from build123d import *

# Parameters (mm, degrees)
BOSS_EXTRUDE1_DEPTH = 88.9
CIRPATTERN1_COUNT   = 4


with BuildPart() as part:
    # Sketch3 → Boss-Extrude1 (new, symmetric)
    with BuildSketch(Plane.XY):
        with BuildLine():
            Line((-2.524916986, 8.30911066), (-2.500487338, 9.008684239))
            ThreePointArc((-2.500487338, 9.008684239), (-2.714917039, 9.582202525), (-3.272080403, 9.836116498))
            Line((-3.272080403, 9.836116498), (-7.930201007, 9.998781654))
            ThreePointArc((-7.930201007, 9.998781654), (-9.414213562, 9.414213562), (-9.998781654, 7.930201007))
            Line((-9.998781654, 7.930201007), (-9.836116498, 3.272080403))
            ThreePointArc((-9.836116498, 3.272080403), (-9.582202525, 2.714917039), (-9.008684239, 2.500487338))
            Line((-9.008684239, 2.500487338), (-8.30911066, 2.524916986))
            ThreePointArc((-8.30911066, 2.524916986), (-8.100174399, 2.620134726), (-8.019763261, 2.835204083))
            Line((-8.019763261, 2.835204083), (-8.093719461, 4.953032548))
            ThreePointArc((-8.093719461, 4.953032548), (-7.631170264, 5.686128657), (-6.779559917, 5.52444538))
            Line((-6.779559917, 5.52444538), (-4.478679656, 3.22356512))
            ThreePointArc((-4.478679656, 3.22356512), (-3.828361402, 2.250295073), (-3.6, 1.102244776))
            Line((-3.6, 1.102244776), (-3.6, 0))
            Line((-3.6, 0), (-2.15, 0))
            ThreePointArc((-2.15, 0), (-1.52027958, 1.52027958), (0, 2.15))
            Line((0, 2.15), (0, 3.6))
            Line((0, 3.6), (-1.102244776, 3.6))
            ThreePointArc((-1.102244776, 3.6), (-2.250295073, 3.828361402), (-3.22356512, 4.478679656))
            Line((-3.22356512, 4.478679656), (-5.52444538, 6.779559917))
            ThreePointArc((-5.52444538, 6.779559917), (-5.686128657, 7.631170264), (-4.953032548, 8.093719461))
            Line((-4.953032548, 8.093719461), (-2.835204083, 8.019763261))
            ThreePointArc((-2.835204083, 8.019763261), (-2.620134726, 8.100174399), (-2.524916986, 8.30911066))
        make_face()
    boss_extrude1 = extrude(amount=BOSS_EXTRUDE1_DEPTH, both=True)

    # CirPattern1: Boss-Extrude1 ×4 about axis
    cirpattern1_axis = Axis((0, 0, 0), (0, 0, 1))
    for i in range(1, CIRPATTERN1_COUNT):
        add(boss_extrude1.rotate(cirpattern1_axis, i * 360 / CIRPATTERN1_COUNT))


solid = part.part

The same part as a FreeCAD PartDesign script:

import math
import FreeCAD as App
import Part
import Sketcher

V = App.Vector
Q = App.Units.Quantity

doc = App.newDocument("Part")
params = doc.addObject("Spreadsheet::Sheet", "Params")
for row, (alias, value) in enumerate([
    ("sketch1_radius", "2 mm"),
    ("sketch1_radius2", "3 mm"),
    ("sketch1_radius3", "0.8 mm"),
    ("sketch1_radius4", "0.3 mm"),
    ("sketch1_radius5", "2.15 mm"),
    ("pad1_length", "177.8 mm"),
], start=1):
    params.set(f"A{row}", alias)
    params.set(f"B{row}", "=" + value)
    params.setAlias(f"B{row}", alias)

body = doc.addObject("PartDesign::Body", "Body")

# Sketch on XY plane
sketch1 = doc.addObject("Sketcher::SketchObject", "Sketch")
body.addObject(sketch1)
sketch1.AttachmentSupport = (doc.XY_Plane, [""])
sketch1.MapMode = "FlatFace"
sketch1.addGeometry(Part.LineSegment(V(-2.524917, 8.309111, 0), V(-2.500487, 9.008684, 0)), False)
sketch1.addGeometry(Part.ArcOfCircle(Part.Circle(V(-3.3, 9.036604, 0), V(0, 0, 1), 0.8), math.radians(-2), math.radians(88)), False)
sketch1.addGeometry(Part.LineSegment(V(-3.27208, 9.836116, 0), V(-7.930201, 9.998782, 0)), False)
sketch1.addGeometry(Part.ArcOfCircle(Part.Circle(V(-8, 8, 0), V(0, 0, 1), 2), math.radians(88), math.radians(182)), False)
sketch1.addGeometry(Part.LineSegment(V(-9.998782, 7.930201, 0), V(-9.836116, 3.27208, 0)), False)
sketch1.addGeometry(Part.ArcOfCircle(Part.Circle(V(-9.036604, 3.3, 0), V(0, 0, 1), 0.8), math.radians(-178), math.radians(-88)), False)
sketch1.addGeometry(Part.LineSegment(V(-9.008684, 2.500487, 0), V(-8.309111, 2.524917, 0)), False)
sketch1.addGeometry(Part.ArcOfCircle(Part.Circle(V(-8.319581, 2.824734, 0), V(0, 0, 1), 0.3), math.radians(-88), math.radians(2)), False)
sketch1.addGeometry(Part.LineSegment(V(-8.019763, 2.835204, 0), V(-8.093719, 4.953033, 0)), False)
sketch1.addGeometry(Part.ArcOfCircle(Part.Circle(V(-7.324097, 4.979908, 0), V(0, 0, 1), 0.770092), math.radians(45), math.radians(182)), False)
sketch1.addGeometry(Part.LineSegment(V(-6.77956, 5.524445, 0), V(-4.47868, 3.223565, 0)), False)
sketch1.addGeometry(Part.ArcOfCircle(Part.Circle(V(-6.6, 1.102245, 0), V(0, 0, 1), 3), math.radians(0), math.radians(45)), False)
sketch1.addGeometry(Part.LineSegment(V(-3.6, 1.102245, 0), V(-3.6, 0, 0)), False)
sketch1.addGeometry(Part.LineSegment(V(-3.6, 0, 0), V(-2.15, 0, 0)), False)
sketch1.addGeometry(Part.ArcOfCircle(Part.Circle(V(0, 0, 0), V(0, 0, 1), 2.15), math.radians(90), math.radians(180)), False)
sketch1.addGeometry(Part.LineSegment(V(0, 2.15, 0), V(0, 3.6, 0)), False)
sketch1.addGeometry(Part.LineSegment(V(0, 3.6, 0), V(-1.102245, 3.6, 0)), False)
sketch1.addGeometry(Part.ArcOfCircle(Part.Circle(V(-1.102245, 6.6, 0), V(0, 0, 1), 3), math.radians(-135), math.radians(-90)), False)
sketch1.addGeometry(Part.LineSegment(V(-3.223565, 4.47868, 0), V(-5.524445, 6.77956, 0)), False)
sketch1.addGeometry(Part.ArcOfCircle(Part.Circle(V(-4.979908, 7.324097, 0), V(0, 0, 1), 0.770092), math.radians(88), math.radians(225)), False)
sketch1.addGeometry(Part.LineSegment(V(-4.953033, 8.093719, 0), V(-2.835204, 8.019763, 0)), False)
sketch1.addGeometry(Part.ArcOfCircle(Part.Circle(V(-2.824734, 8.319581, 0), V(0, 0, 1), 0.3), math.radians(-92), math.radians(-2)), False)
sketch1.addConstraint(Sketcher.Constraint("Tangent", 0, 2, 1, 1))
sketch1.addConstraint(Sketcher.Constraint("Tangent", 1, 2, 2, 1))
sketch1.addConstraint(Sketcher.Constraint("Tangent", 2, 2, 3, 1))
sketch1.addConstraint(Sketcher.Constraint("Tangent", 3, 2, 4, 1))
sketch1.addConstraint(Sketcher.Constraint("Tangent", 4, 2, 5, 1))
sketch1.addConstraint(Sketcher.Constraint("Tangent", 5, 2, 6, 1))
sketch1.addConstraint(Sketcher.Constraint("Tangent", 6, 2, 7, 1))
sketch1.addConstraint(Sketcher.Constraint("Tangent", 7, 2, 8, 1))
sketch1.addConstraint(Sketcher.Constraint("Tangent", 8, 2, 9, 2))
sketch1.addConstraint(Sketcher.Constraint("Tangent", 9, 1, 10, 1))
sketch1.addConstraint(Sketcher.Constraint("Tangent", 10, 2, 11, 2))
sketch1.addConstraint(Sketcher.Constraint("Tangent", 11, 1, 12, 1))
sketch1.addConstraint(Sketcher.Constraint("Coincident", 12, 2, 13, 1))
sketch1.addConstraint(Sketcher.Constraint("Coincident", 13, 2, 14, 2))
sketch1.addConstraint(Sketcher.Constraint("Coincident", 14, 1, 15, 1))
sketch1.addConstraint(Sketcher.Constraint("Coincident", 15, 2, 16, 1))
sketch1.addConstraint(Sketcher.Constraint("Tangent", 16, 2, 17, 2))
sketch1.addConstraint(Sketcher.Constraint("Tangent", 17, 1, 18, 1))
sketch1.addConstraint(Sketcher.Constraint("Tangent", 18, 2, 19, 2))
sketch1.addConstraint(Sketcher.Constraint("Tangent", 19, 1, 20, 1))
sketch1.addConstraint(Sketcher.Constraint("Tangent", 20, 2, 21, 1))
sketch1.addConstraint(Sketcher.Constraint("Tangent", 21, 2, 0, 1))
sketch1.addConstraint(Sketcher.Constraint("Vertical", 12))
sketch1.addConstraint(Sketcher.Constraint("Horizontal", 13))
sketch1.addConstraint(Sketcher.Constraint("Vertical", 15))
sketch1.addConstraint(Sketcher.Constraint("Horizontal", 16))
sketch1.addConstraint(Sketcher.Constraint("Coincident", 14, 3, -1, 1))
sketch1.addConstraint(Sketcher.Constraint("Equal", 1, 5))
sketch1.addConstraint(Sketcher.Constraint("Equal", 11, 17))
sketch1.addConstraint(Sketcher.Constraint("Equal", 9, 19))
sketch1.addConstraint(Sketcher.Constraint("Equal", 7, 21))
sketch1.addConstraint(Sketcher.Constraint("PointOnObject", 12, 2, -1))
sketch1.addConstraint(Sketcher.Constraint("PointOnObject", 14, 1, -2))
sketch1.addConstraint(Sketcher.Constraint("Perpendicular", 0, 2))
sketch1.addConstraint(Sketcher.Constraint("Perpendicular", 4, 6))
sketch1.addConstraint(Sketcher.Constraint("Perpendicular", 6, 8))
sketch1.addConstraint(Sketcher.Constraint("Parallel", 10, 18))
sketch1.addConstraint(Sketcher.Constraint("Parallel", 2, 20))
sketch1.addConstraint(Sketcher.Constraint("Equal", 16, 12))
sketch1.addConstraint(Sketcher.Constraint("Equal", 13, 15))
sketch1.addConstraint(Sketcher.Constraint("Equal", 2, 4))
sketch1.addConstraint(Sketcher.Constraint("Equal", 0, 6))
sketch1.addConstraint(Sketcher.Constraint("Equal", 10, 18))
sketch1.addConstraint(Sketcher.Constraint("Equal", 8, 20))
sketch1.addConstraint(Sketcher.Constraint("Radius", 3, 2.0))
sketch1.addConstraint(Sketcher.Constraint("Radius", 11, 3.0))
sketch1.addConstraint(Sketcher.Constraint("Radius", 1, 0.8))
sketch1.addConstraint(Sketcher.Constraint("Radius", 7, 0.3))
sketch1.addConstraint(Sketcher.Constraint("Angle", 0, Q("88 deg")))
sketch1.addConstraint(Sketcher.Constraint("Angle", 4, Q("-88 deg")))
sketch1.addConstraint(Sketcher.Constraint("Radius", 14, 2.15))
sketch1.addConstraint(Sketcher.Constraint("DistanceX", 3, 3, -1, 1, 8.0))
sketch1.addConstraint(Sketcher.Constraint("Distance", 0, 0.7))
sketch1.addConstraint(Sketcher.Constraint("DistanceX", 13, 1, 13, 2, 1.45))
sketch1.addConstraint(Sketcher.Constraint("DistanceX", 1, 3, -1, 1, 3.3))
sketch1.addConstraint(Sketcher.Constraint("Radius", 9, 0.770092))
sketch1.addConstraint(Sketcher.Constraint("DistanceY", 7, 3, 8, 2, 2.128298))
sketch1.setExpression("Constraints[44]", "Params.sketch1_radius")
sketch1.setExpression("Constraints[45]", "Params.sketch1_radius2")
sketch1.setExpression("Constraints[46]", "Params.sketch1_radius3")
sketch1.setExpression("Constraints[47]", "Params.sketch1_radius4")
sketch1.setExpression("Constraints[50]", "Params.sketch1_radius5")
pad1 = doc.addObject("PartDesign::Pad", "Pad")
body.addObject(pad1)
pad1.Profile = sketch1
pad1.setExpression("Length", "Params.pad1_length")
pad1.Midplane = True
doc.recompute()

polarpattern = doc.addObject("PartDesign::PolarPattern", "PolarPattern")
body.addObject(polarpattern)
polarpattern.Originals = [pad1]
polarpattern.Axis = (doc.Z_Axis, [""])
polarpattern.Angle = 360
polarpattern.Occurrences = 4
body.Tip = polarpattern

doc.recompute()
